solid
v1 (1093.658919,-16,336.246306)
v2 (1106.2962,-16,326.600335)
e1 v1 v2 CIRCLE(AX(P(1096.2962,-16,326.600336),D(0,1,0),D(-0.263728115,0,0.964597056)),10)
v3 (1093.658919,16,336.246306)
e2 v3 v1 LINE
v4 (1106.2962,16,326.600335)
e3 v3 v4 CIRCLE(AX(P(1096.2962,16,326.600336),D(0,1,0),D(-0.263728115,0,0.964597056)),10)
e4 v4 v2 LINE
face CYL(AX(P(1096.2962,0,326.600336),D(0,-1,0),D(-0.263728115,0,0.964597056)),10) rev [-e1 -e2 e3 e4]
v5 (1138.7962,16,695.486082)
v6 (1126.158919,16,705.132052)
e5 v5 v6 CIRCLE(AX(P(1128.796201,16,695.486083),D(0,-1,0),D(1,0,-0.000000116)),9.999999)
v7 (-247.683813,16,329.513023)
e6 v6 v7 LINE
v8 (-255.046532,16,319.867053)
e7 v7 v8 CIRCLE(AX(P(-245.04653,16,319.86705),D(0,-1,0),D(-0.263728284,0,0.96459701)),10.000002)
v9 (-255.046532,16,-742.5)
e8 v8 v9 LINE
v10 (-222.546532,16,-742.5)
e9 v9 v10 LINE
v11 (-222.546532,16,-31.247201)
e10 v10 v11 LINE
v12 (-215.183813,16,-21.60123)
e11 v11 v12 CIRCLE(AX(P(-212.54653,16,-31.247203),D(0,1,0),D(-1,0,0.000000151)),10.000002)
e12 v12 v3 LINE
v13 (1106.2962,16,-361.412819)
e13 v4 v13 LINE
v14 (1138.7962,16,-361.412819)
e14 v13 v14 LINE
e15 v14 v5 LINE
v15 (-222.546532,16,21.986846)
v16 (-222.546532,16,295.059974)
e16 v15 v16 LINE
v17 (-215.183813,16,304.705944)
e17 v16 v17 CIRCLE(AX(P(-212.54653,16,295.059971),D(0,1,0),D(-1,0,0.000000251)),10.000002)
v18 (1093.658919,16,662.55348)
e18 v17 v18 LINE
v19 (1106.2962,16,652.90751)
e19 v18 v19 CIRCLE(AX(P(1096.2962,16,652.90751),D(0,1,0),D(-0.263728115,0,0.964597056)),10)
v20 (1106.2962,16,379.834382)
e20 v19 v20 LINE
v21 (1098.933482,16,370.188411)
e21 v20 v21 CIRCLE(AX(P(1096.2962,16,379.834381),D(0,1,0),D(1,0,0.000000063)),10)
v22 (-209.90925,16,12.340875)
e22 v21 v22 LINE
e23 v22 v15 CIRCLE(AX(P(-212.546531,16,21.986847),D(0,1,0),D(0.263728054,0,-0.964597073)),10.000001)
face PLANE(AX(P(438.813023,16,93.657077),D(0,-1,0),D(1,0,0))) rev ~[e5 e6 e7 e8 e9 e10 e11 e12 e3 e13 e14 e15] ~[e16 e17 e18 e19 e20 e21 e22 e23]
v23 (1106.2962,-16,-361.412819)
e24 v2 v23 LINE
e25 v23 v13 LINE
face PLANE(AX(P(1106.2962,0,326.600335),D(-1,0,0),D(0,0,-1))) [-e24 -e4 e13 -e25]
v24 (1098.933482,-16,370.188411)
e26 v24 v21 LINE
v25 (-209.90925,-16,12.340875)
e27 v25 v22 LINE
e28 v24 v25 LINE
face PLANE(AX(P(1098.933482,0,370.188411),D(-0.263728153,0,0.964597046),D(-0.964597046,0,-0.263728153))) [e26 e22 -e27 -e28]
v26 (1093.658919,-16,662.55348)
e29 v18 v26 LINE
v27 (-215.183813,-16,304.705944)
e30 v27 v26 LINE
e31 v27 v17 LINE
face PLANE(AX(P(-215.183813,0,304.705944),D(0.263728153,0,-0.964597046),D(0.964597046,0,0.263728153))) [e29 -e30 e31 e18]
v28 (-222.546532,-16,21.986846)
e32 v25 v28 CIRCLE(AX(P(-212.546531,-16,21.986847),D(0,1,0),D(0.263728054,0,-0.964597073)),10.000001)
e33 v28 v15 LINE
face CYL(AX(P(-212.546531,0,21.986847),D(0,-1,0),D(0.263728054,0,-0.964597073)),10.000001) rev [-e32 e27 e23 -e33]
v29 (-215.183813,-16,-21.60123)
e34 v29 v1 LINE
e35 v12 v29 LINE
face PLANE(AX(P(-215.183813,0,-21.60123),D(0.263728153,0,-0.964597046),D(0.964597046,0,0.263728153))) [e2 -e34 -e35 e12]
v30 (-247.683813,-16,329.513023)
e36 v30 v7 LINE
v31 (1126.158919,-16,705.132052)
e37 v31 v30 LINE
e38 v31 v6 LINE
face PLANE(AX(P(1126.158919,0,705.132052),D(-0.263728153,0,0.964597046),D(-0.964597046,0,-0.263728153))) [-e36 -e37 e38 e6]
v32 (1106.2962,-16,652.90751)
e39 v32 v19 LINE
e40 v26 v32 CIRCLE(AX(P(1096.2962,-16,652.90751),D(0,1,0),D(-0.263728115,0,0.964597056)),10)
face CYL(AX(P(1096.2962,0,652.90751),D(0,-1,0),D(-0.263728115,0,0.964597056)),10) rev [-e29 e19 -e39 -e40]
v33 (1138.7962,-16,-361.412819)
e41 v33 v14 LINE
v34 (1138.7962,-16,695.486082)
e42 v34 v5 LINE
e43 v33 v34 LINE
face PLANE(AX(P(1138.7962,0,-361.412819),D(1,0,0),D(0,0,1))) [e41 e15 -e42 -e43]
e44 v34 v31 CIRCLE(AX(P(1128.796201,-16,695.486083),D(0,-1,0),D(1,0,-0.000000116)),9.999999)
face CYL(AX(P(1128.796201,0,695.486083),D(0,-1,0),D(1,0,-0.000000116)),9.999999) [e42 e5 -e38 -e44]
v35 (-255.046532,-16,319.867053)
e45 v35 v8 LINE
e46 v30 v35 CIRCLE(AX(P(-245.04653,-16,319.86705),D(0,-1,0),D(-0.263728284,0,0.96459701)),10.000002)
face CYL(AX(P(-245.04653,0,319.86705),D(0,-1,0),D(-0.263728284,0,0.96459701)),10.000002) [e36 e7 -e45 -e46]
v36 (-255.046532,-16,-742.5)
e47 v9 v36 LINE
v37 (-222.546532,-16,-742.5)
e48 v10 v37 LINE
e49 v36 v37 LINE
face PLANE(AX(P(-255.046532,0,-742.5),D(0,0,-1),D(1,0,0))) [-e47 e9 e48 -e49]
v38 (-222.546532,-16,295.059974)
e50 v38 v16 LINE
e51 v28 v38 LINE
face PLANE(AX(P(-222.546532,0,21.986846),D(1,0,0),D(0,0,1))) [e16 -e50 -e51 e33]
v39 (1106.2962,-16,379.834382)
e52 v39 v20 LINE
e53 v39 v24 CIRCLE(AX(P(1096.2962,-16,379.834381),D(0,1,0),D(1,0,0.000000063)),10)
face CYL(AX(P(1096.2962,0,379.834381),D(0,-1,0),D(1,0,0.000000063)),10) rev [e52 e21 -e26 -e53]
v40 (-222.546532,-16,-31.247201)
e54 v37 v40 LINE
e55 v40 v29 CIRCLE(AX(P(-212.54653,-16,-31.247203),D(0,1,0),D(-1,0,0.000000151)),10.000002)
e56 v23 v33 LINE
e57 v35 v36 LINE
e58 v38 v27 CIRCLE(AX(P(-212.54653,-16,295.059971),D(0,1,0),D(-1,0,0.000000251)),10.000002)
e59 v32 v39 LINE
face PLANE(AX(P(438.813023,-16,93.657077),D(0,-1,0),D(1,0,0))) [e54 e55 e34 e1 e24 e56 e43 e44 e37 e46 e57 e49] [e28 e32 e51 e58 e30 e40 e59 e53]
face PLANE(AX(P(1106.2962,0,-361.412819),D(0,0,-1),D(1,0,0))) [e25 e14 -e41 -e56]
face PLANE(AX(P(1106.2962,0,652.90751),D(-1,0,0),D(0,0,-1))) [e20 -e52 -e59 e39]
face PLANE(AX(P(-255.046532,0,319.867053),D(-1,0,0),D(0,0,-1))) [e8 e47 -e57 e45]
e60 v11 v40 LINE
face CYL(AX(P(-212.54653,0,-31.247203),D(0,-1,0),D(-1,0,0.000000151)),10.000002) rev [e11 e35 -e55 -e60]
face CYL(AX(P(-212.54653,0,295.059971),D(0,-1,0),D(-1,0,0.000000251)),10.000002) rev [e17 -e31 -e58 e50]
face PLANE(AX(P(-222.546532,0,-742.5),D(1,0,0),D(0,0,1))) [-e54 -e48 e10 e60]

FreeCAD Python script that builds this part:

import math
import FreeCAD as App
import Part
import Sketcher
from FreeCAD import Vector
Q = App.Units.Quantity

doc = App.newDocument("Part")
body = doc.addObject("PartDesign::Body", "Body")

sketch1 = doc.addObject("Sketcher::SketchObject", "Sketch")
body.addObject(sketch1)
sketch1.AttachmentSupport = (doc.XZ_Plane, [""])
sketch1.MapMode = "FlatFace"
sketch1.addGeometry([
    Part.LineSegment(Vector(-255.046532, 319.867053, 0), Vector(-255.046532, -742.5, 0)),
    Part.LineSegment(Vector(-255.046532, -742.5, 0), Vector(-222.546532, -742.5, 0)),
    Part.LineSegment(Vector(-222.546532, -742.5, 0), Vector(-222.546532, -31.247201, 0)),
    Part.ArcOfCircle(Part.Circle(Vector(-212.54653, -31.247203, 0), Vector(0, 0, 1), 10.000002), math.radians(105.291401), math.radians(179.999991)),
    Part.LineSegment(Vector(-215.183813, -21.60123, 0), Vector(1093.658919, 336.246306, 0)),
    Part.ArcOfCircle(Part.Circle(Vector(1096.2962, 326.600336, 0), Vector(0, 0, 1), 10), math.radians(-0.000003), math.radians(105.291391)),
    Part.LineSegment(Vector(1106.2962, 326.600335, 0), Vector(1106.2962, -361.412819, 0)),
    Part.LineSegment(Vector(1106.2962, -361.412819, 0), Vector(1138.7962, -361.412819, 0)),
    Part.LineSegment(Vector(1138.7962, -361.412819, 0), Vector(1138.7962, 695.486082, 0)),
    Part.ArcOfCircle(Part.Circle(Vector(1128.796201, 695.486083, 0), Vector(0, 0, 1), 9.999999), math.radians(-0.000007), math.radians(105.2914)),
    Part.LineSegment(Vector(1126.158919, 705.132052, 0), Vector(-247.683813, 329.513023, 0)),
    Part.ArcOfCircle(Part.Circle(Vector(-245.04653, 319.86705, 0), Vector(0, 0, 1), 10.000002), math.radians(105.291401), math.radians(179.999986)),
    Part.LineSegment(Vector(-215.183813, 304.705944, 0), Vector(1093.658919, 662.55348, 0)),
    Part.ArcOfCircle(Part.Circle(Vector(1096.2962, 652.90751, 0), Vector(0, 0, 1), 10), math.radians(0.000003), math.radians(105.291391)),
    Part.LineSegment(Vector(1106.2962, 652.90751, 0), Vector(1106.2962, 379.834382, 0)),
    Part.ArcOfCircle(Part.Circle(Vector(1096.2962, 379.834381, 0), Vector(0, 0, 1), 10), math.radians(-74.708604), math.radians(0.000004)),
    Part.LineSegment(Vector(1098.933482, 370.188411, 0), Vector(-209.90925, 12.340875, 0)),
    Part.ArcOfCircle(Part.Circle(Vector(-212.546531, 21.986847, 0), Vector(0, 0, 1), 10.000001), math.radians(-179.999995), math.radians(-74.708613)),
    Part.LineSegment(Vector(-222.546532, 21.986846, 0), Vector(-222.546532, 295.059974, 0)),
    Part.ArcOfCircle(Part.Circle(Vector(-212.54653, 295.059971, 0), Vector(0, 0, 1), 10.000002), math.radians(105.291401), math.radians(179.999986)),
], False)
sketch1.addConstraint([
    Sketcher.Constraint("Coincident", 0, 2, 1, 1),
    Sketcher.Constraint("Coincident", 1, 2, 2, 1),
    Sketcher.Constraint("Coincident", 2, 2, 3, 2),
    Sketcher.Constraint("Coincident", 3, 1, 4, 1),
    Sketcher.Constraint("Coincident", 4, 2, 5, 2),
    Sketcher.Constraint("Coincident", 5, 1, 6, 1),
    Sketcher.Constraint("Coincident", 6, 2, 7, 1),
    Sketcher.Constraint("Coincident", 7, 2, 8, 1),
    Sketcher.Constraint("Coincident", 8, 2, 9, 1),
    Sketcher.Constraint("Coincident", 9, 2, 10, 1),
    Sketcher.Constraint("Coincident", 10, 2, 11, 1),
    Sketcher.Constraint("Coincident", 11, 2, 0, 1),
    Sketcher.Constraint("Coincident", 12, 2, 13, 2),
    Sketcher.Constraint("Coincident", 13, 1, 14, 1),
    Sketcher.Constraint("Coincident", 14, 2, 15, 2),
    Sketcher.Constraint("Coincident", 15, 1, 16, 1),
    Sketcher.Constraint("Coincident", 16, 2, 17, 2),
    Sketcher.Constraint("Coincident", 17, 1, 18, 1),
    Sketcher.Constraint("Coincident", 18, 2, 19, 2),
    Sketcher.Constraint("Coincident", 19, 1, 12, 1),
    Sketcher.Constraint("Vertical", 0),
    Sketcher.Constraint("Horizontal", 1),
    Sketcher.Constraint("Vertical", 2),
    Sketcher.Constraint("Vertical", 6),
    Sketcher.Constraint("Horizontal", 7),
    Sketcher.Constraint("Vertical", 8),
    Sketcher.Constraint("Vertical", 14),
    Sketcher.Constraint("Vertical", 18),
    Sketcher.Constraint("Radius", 5, Q("10 mm")),
    Sketcher.Constraint("Radius", 9, Q("9.999999 mm")),
    Sketcher.Constraint("Radius", 13, Q("10 mm")),
    Sketcher.Constraint("Radius", 15, Q("10 mm")),
    Sketcher.Constraint("Radius", 17, Q("10.000001 mm")),
    Sketcher.Constraint("DistanceX", 1, 1, 1, 2, Q("32.5 mm")),
    Sketcher.Constraint("DistanceX", 7, 1, 7, 2, Q("32.5 mm")),
    Sketcher.Constraint("DistanceX", 1, 2, 17, 3, Q("10.000001 mm")),
    Sketcher.Constraint("DistanceX", 15, 3, 5, 1, Q("10 mm")),
    Sketcher.Constraint("DistanceY", 0, 2, -1, 1, Q("742.5 mm")),
    Sketcher.Constraint("DistanceX", 11, 3, 3, 3, Q("32.5 mm")),
    Sketcher.Constraint("DistanceX", 11, 3, 17, 3, Q("32.499999 mm")),
    Sketcher.Constraint("DistanceX", 11, 3, 19, 3, Q("32.5 mm")),
    Sketcher.Constraint("DistanceX", 4, 2, 9, 2, Q("32.5 mm")),
    Sketcher.Constraint("DistanceX", 10, 2, 3, 1, Q("32.5 mm")),
    Sketcher.Constraint("DistanceX", 12, 2, 9, 2, Q("32.5 mm")),
    Sketcher.Constraint("DistanceX", 10, 2, 19, 1, Q("32.5 mm")),
    Sketcher.Constraint("DistanceY", 2, 1, 2, 2, Q("711.252799 mm")),
    Sketcher.Constraint("DistanceY", 8, 1, 8, 2, Q("1056.898901 mm")),
    Sketcher.Constraint("DistanceY", 14, 2, 14, 1, Q("273.073128 mm")),
    Sketcher.Constraint("DistanceY", 18, 1, 18, 2, Q("273.073128 mm")),
    Sketcher.Constraint("DistanceX", -1, 1, 5, 3, Q("1096.2962 mm")),
    Sketcher.Constraint("DistanceY", 15, 3, 9, 3, Q("315.651702 mm")),
    Sketcher.Constraint("DistanceY", 3, 1, 19, 3, Q("316.661201 mm")),
    Sketcher.Constraint("DistanceY", 6, 2, 15, 3, Q("741.2472 mm")),
    Sketcher.Constraint("DistanceY", 12, 2, 8, 2, Q("32.932602 mm")),
    Sketcher.Constraint("DistanceY", 0, 2, 0, 1, Q("1062.367053 mm")),
    Sketcher.Constraint("DistanceY", 6, 2, 6, 1, Q("688.013154 mm")),
    Sketcher.Constraint("DistanceX", 3, 3, -1, 1, Q("212.54653 mm")),
    Sketcher.Constraint("DistanceY", -1, 1, 11, 3, Q("319.86705 mm")),
    Sketcher.Constraint("DistanceY", -1, 1, 13, 3, Q("652.90751 mm")),
    Sketcher.Constraint("DistanceY", -1, 1, 15, 3, Q("379.834381 mm")),
    Sketcher.Constraint("DistanceY", -1, 1, 19, 3, Q("295.059971 mm")),
    Sketcher.Constraint("DistanceY", -1, 1, 13, 1, Q("652.90751 mm")),
    Sketcher.Constraint("DistanceY", -1, 1, 15, 1, Q("370.188411 mm")),
    Sketcher.Constraint("DistanceX", 16, 2, -1, 1, Q("209.90925 mm")),
    Sketcher.Constraint("DistanceY", 3, 3, 5, 3, Q("357.847538 mm")),
    Sketcher.Constraint("DistanceY", 3, 3, 17, 3, Q("53.234049 mm")),
    Sketcher.Constraint("DistanceX", 2, 2, 3, 1, Q("7.362719 mm")),
    Sketcher.Constraint("DistanceY", 16, 2, 17, 1, Q("9.645971 mm")),
])
pad1 = doc.addObject("PartDesign::Pad", "Pad")
body.addObject(pad1)
pad1.Profile = sketch1
pad1.Length = 32
pad1.Midplane = True

doc.recompute()
